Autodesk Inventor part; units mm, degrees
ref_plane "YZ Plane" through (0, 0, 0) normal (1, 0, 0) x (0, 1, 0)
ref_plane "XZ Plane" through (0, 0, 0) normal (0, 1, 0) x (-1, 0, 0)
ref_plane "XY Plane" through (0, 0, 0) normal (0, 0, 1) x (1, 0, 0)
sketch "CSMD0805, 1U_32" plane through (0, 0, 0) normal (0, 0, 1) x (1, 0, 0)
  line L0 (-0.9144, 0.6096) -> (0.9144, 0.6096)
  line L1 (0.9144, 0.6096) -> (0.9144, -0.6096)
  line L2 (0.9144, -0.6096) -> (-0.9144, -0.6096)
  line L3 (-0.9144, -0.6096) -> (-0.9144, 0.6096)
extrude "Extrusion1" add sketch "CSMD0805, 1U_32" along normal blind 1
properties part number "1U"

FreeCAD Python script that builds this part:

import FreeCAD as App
import Part
import Sketcher
from FreeCAD import Vector
Q = App.Units.Quantity


def add_polygon(sketch, points):
    """Adds a closed chain of lines whose ends are joined by coincident constraints."""
    first, n = sketch.GeometryCount, len(points)
    for a, b in zip(points, points[1:] + points[:1]):
        sketch.addGeometry(Part.LineSegment(App.Vector(*a, 0), App.Vector(*b, 0)), False)
    for i in range(n):
        sketch.addConstraint(Sketcher.Constraint("Coincident", first + i, 2, first + (i + 1) % n, 1))

doc = App.newDocument("Part")
params = doc.addObject("Spreadsheet::Sheet", "Params")
for row, (alias, value) in enumerate([
    ("sketch1_width", "0.072 in"),
    ("sketch1_height", "0.048 in"),
    ("pad1_length", "1 mm"),
], start=1):
    params.set(f"A{row}", alias)
    params.set(f"B{row}", "=" + value)
    params.setAlias(f"B{row}", alias)

body = doc.addObject("PartDesign::Body", "Body")

sketch1 = body.newObject("Sketcher::SketchObject", "Sketch")
sketch1.AttachmentSupport = (doc.getObject("XY_Plane"), [""])
sketch1.MapMode = "FlatFace"
add_polygon(sketch1, [(0.9, 0.6), (-0.9, 0.6), (-0.9, -0.6), (0.9, -0.6)])
sketch1.addConstraint([
    Sketcher.Constraint("Horizontal", 0),
    Sketcher.Constraint("Vertical", 1),
    Sketcher.Constraint("Horizontal", 2),
    Sketcher.Constraint("Vertical", 3),
    Sketcher.Constraint("Symmetric", 0, 2, 2, 2, -1, 1),
    Sketcher.Constraint("DistanceX", 0, 2, 0, 1, Q("0.072 in")),
    Sketcher.Constraint("DistanceY", 1, 2, 1, 1, Q("0.048 in")),
])
sketch1.setExpression("Constraints[9]", "Params.sketch1_width")
sketch1.setExpression("Constraints[10]", "Params.sketch1_height")
pad1 = body.newObject("PartDesign::Pad", "Pad")
pad1.Profile = sketch1
pad1.setExpression("Length", "Params.pad1_length")

doc.recompute()
